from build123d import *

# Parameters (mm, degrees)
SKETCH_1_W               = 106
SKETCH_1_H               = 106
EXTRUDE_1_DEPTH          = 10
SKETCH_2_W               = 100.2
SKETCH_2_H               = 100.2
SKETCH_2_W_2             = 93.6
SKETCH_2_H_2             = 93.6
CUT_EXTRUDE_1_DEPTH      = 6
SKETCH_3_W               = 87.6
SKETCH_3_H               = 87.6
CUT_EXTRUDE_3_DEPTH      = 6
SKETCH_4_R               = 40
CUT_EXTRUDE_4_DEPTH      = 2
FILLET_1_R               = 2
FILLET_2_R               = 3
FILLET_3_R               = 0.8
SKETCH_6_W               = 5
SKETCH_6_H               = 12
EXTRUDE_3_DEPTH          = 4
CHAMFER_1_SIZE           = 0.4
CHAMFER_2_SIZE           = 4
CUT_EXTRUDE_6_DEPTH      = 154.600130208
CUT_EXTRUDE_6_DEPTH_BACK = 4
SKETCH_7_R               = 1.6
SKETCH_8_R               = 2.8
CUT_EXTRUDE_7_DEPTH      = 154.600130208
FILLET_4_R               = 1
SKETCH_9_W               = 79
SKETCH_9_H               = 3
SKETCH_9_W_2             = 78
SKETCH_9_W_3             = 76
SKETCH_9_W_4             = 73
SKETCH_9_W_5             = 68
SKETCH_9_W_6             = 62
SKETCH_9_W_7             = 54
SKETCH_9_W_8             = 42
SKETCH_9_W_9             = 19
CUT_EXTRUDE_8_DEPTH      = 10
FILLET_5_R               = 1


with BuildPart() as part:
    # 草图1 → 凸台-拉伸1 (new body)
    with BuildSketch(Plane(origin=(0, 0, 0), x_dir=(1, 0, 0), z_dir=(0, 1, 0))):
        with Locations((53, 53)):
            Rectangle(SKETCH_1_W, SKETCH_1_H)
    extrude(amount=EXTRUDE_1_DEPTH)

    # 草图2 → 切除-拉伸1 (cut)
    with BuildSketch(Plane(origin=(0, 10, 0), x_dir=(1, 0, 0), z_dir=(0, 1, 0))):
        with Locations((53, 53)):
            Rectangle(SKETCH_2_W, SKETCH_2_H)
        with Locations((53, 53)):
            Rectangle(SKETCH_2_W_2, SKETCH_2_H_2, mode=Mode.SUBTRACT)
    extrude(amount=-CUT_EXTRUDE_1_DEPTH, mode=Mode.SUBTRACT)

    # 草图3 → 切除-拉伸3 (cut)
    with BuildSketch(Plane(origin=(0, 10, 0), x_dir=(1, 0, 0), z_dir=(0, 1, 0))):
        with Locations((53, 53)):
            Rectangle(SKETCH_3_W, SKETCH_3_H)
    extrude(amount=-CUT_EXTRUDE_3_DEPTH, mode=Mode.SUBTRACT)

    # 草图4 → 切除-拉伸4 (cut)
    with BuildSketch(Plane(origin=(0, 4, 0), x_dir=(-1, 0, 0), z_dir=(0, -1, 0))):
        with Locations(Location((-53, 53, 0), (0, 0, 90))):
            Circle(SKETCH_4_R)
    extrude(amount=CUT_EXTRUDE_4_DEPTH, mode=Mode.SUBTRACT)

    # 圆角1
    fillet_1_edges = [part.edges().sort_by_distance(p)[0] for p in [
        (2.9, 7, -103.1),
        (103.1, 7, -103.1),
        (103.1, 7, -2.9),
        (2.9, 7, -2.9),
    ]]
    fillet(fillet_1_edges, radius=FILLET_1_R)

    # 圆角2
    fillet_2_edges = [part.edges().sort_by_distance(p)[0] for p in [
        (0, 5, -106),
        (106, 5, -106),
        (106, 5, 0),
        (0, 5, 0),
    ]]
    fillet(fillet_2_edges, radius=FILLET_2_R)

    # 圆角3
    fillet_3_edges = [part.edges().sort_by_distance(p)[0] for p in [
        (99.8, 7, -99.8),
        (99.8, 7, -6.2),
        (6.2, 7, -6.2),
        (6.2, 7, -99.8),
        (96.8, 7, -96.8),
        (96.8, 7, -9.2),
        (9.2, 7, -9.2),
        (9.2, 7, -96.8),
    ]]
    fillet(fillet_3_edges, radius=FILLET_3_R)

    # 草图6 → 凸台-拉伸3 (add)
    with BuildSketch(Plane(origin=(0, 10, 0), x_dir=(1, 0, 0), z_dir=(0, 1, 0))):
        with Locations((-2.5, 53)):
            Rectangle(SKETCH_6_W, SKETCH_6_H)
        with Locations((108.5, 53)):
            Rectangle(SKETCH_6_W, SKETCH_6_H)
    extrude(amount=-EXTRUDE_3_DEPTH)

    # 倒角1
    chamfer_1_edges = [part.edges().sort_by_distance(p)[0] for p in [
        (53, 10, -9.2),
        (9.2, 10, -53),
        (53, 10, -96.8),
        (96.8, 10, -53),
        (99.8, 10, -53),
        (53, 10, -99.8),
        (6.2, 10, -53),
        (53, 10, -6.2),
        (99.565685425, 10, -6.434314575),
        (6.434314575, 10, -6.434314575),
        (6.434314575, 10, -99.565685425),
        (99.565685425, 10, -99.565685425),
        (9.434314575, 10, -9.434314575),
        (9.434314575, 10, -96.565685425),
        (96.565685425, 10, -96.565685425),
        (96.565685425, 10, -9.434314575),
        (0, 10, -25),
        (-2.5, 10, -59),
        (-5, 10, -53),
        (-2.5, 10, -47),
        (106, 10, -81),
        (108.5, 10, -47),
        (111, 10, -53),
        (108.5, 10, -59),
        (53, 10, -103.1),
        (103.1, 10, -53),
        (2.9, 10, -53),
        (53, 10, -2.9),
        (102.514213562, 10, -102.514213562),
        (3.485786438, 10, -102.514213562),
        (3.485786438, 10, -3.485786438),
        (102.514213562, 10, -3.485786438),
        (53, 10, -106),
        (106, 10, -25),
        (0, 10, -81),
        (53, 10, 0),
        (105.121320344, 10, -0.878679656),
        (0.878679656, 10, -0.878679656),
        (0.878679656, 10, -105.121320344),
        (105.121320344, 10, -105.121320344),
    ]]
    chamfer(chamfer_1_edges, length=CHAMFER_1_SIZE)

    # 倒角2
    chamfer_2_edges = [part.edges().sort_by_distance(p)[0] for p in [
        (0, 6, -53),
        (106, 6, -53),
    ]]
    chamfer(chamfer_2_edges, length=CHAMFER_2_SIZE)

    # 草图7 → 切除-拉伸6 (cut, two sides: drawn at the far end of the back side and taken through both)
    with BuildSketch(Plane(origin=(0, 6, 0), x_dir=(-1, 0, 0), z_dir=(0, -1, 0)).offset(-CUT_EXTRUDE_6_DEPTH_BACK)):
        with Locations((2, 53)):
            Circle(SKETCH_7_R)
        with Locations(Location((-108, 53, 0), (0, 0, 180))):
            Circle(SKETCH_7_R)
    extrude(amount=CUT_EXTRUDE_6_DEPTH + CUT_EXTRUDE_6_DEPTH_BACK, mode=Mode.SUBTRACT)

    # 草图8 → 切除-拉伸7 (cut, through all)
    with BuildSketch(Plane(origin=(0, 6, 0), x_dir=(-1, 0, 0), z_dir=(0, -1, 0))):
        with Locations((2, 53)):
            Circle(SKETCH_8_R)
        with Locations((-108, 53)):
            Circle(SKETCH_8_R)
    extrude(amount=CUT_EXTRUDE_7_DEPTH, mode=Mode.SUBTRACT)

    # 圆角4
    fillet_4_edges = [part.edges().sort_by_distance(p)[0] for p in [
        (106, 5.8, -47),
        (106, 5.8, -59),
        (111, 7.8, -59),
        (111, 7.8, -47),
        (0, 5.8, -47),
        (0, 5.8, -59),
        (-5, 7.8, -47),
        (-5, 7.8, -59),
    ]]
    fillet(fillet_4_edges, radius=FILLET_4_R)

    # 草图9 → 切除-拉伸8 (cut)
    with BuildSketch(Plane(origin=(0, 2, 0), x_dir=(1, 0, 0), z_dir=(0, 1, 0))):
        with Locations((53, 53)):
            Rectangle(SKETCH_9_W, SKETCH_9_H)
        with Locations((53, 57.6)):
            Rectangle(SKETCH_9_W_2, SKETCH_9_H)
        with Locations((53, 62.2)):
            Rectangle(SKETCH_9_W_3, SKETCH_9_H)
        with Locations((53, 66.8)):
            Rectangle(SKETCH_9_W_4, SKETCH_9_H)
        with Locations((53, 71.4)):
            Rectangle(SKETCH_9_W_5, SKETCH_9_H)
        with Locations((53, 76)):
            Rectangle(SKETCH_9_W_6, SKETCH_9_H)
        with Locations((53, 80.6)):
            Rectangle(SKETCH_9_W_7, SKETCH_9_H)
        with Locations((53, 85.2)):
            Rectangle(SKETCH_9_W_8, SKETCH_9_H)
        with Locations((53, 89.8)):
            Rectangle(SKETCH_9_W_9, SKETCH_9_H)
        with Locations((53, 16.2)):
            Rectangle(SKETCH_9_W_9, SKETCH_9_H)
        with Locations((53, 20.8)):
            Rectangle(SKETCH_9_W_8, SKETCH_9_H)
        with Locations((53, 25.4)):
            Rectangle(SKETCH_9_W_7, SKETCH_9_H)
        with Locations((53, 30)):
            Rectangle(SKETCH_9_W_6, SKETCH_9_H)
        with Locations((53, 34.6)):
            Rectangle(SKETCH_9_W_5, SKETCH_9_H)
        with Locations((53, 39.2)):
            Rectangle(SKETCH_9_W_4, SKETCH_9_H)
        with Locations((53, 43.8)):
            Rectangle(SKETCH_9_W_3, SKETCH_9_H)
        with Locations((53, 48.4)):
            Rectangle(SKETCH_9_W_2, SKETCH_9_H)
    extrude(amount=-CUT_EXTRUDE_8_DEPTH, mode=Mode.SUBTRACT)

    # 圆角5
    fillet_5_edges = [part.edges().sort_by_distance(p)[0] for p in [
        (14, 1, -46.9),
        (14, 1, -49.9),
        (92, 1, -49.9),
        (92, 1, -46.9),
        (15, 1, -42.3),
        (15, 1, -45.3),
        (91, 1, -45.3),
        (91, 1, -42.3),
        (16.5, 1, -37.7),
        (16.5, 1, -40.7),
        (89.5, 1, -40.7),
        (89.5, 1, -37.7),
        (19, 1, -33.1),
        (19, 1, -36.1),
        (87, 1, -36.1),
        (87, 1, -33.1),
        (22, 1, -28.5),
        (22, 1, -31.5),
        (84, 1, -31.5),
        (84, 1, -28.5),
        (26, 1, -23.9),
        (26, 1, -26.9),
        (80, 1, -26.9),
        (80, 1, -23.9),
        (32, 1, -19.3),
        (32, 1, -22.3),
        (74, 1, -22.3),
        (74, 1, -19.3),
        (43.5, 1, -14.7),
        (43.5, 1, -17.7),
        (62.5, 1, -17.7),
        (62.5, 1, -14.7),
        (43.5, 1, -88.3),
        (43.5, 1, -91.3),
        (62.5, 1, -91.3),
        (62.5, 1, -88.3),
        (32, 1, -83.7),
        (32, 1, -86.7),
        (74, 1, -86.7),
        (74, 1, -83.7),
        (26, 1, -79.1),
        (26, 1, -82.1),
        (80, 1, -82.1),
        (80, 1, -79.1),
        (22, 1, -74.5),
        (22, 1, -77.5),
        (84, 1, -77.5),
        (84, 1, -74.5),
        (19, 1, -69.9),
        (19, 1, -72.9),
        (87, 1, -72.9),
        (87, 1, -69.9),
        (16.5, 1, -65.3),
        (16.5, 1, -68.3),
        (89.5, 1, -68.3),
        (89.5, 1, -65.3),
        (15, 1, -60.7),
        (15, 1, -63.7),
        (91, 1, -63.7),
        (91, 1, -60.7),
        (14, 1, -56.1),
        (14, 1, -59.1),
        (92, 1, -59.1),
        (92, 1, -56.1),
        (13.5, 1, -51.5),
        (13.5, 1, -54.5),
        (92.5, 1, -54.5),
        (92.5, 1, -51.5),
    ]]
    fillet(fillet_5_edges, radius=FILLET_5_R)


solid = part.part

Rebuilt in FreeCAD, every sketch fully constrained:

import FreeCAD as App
import Part
import Sketcher


def edges_at(feature, points):
    """Names of the edges that pass closest to the given points."""
    edges = feature.Shape.Edges
    near = lambda p: min(range(len(edges)), key=lambda i: edges[i].distToShape(Part.Vertex(*p))[0])
    return sorted({f"Edge{near(p) + 1}" for p in points})

doc = App.newDocument("Part")
body = doc.addObject("PartDesign::Body", "Body")

# Sketch on XZ plane
sketch1 = body.newObject("Sketcher::SketchObject", "Sketch")
sketch1.AttachmentSupport = (doc.getObject("XZ_Plane"), [""])
sketch1.MapMode = "FlatFace"
sketch1.addGeometry([
    Part.LineSegment(App.Vector(0, -106, 0), App.Vector(0, 0, 0)),
    Part.LineSegment(App.Vector(0, 0, 0), App.Vector(106, 0, 0)),
    Part.LineSegment(App.Vector(106, 0, 0), App.Vector(106, -106, 0)),
    Part.LineSegment(App.Vector(106, -106, 0), App.Vector(0, -106, 0)),
], False)
sketch1.addConstraint([
    Sketcher.Constraint("Coincident", 0, 2, 1, 1),
    Sketcher.Constraint("Coincident", 1, 2, 2, 1),
    Sketcher.Constraint("Coincident", 2, 2, 3, 1),
    Sketcher.Constraint("Coincident", 3, 2, 0, 1),
    Sketcher.Constraint("Vertical", 0),
    Sketcher.Constraint("Horizontal", 1),
    Sketcher.Constraint("Vertical", 2),
    Sketcher.Constraint("Horizontal", 3),
    Sketcher.Constraint("Coincident", 0, 2, -1, 1),
    Sketcher.Constraint("Equal", 3, 0),
    Sketcher.Constraint("DistanceX", 1, 1, 1, 2, 106.0),
])
pad1 = body.newObject("PartDesign::Pad", "Pad")
pad1.Profile = sketch1
pad1.Length = 10
pad1.Reversed = True

# Sketch on XZ plane
sketch2 = body.newObject("Sketcher::SketchObject", "Sketch001")
sketch2.AttachmentSupport = (doc.getObject("XZ_Plane"), [""])
sketch2.MapMode = "FlatFace"
sketch2.AttachmentOffset = App.Placement(App.Vector(0, 0, -10), App.Rotation())
sketch2.addGeometry([
    Part.LineSegment(App.Vector(3, -103, 0), App.Vector(3, -3, 0)),  # 0
    Part.LineSegment(App.Vector(3, -3, 0), App.Vector(103, -3, 0)),  # 1
    Part.LineSegment(App.Vector(103, -3, 0), App.Vector(103, -103, 0)),  # 2
    Part.LineSegment(App.Vector(103, -103, 0), App.Vector(3, -103, 0)),  # 3
    Part.LineSegment(App.Vector(100, -6, 0), App.Vector(6, -6, 0)),  # 4
    Part.LineSegment(App.Vector(6, -6, 0), App.Vector(6, -100, 0)),  # 5
    Part.LineSegment(App.Vector(6, -100, 0), App.Vector(100, -100, 0)),  # 6
    Part.LineSegment(App.Vector(100, -100, 0), App.Vector(100, -6, 0)),  # 7
], False)
sketch2.addConstraint([
    Sketcher.Constraint("Coincident", 0, 2, 1, 1),
    Sketcher.Constraint("Coincident", 1, 2, 2, 1),
    Sketcher.Constraint("Coincident", 2, 2, 3, 1),
    Sketcher.Constraint("Coincident", 3, 2, 0, 1),
    Sketcher.Constraint("Coincident", 4, 2, 5, 1),
    Sketcher.Constraint("Coincident", 5, 2, 6, 1),
    Sketcher.Constraint("Coincident", 6, 2, 7, 1),
    Sketcher.Constraint("Coincident", 7, 2, 4, 1),
    Sketcher.Constraint("Vertical", 0),
    Sketcher.Constraint("Horizontal", 1),
    Sketcher.Constraint("Vertical", 2),
    Sketcher.Constraint("Horizontal", 3),
    Sketcher.Constraint("Horizontal", 4),
    Sketcher.Constraint("Vertical", 5),
    Sketcher.Constraint("Horizontal", 6),
    Sketcher.Constraint("Vertical", 7),
    Sketcher.Constraint("Equal", 3, 0),
    Sketcher.Constraint("Equal", 6, 5),
    Sketcher.Constraint("DistanceX", 1, 1, 1, 2, 100.2),
    Sketcher.Constraint("DistanceX", 4, 2, 4, 1, 93.6),
    Sketcher.Constraint("DistanceX", -1, 1, 0, 2, 2.9),
    Sketcher.Constraint("DistanceY", 0, 2, -1, 1, 2.9),
    Sketcher.Constraint("DistanceX", -1, 1, 4, 2, 6.2),
    Sketcher.Constraint("DistanceY", 4, 2, -1, 1, 6.2),
])
pocket1 = body.newObject("PartDesign::Pocket", "Pocket")
pocket1.Profile = sketch2
pocket1.Length = 6
pocket1.Reversed = True

# Sketch on XZ plane
sketch3 = body.newObject("Sketcher::SketchObject", "Sketch002")
sketch3.AttachmentSupport = (doc.getObject("XZ_Plane"), [""])
sketch3.MapMode = "FlatFace"
sketch3.AttachmentOffset = App.Placement(App.Vector(0, 0, -10), App.Rotation())
sketch3.addGeometry([
    Part.LineSegment(App.Vector(9, -97, 0), App.Vector(9, -9, 0)),
    Part.LineSegment(App.Vector(9, -9, 0), App.Vector(97, -9, 0)),
    Part.LineSegment(App.Vector(97, -9, 0), App.Vector(97, -97, 0)),
    Part.LineSegment(App.Vector(97, -97, 0), App.Vector(9, -97, 0)),
], False)
sketch3.addConstraint([
    Sketcher.Constraint("Coincident", 0, 2, 1, 1),
    Sketcher.Constraint("Coincident", 1, 2, 2, 1),
    Sketcher.Constraint("Coincident", 2, 2, 3, 1),
    Sketcher.Constraint("Coincident", 3, 2, 0, 1),
    Sketcher.Constraint("Vertical", 0),
    Sketcher.Constraint("Horizontal", 1),
    Sketcher.Constraint("Vertical", 2),
    Sketcher.Constraint("Horizontal", 3),
    Sketcher.Constraint("Equal", 3, 0),
    Sketcher.Constraint("DistanceX", 1, 1, 1, 2, 87.6),
    Sketcher.Constraint("DistanceX", -1, 1, 0, 2, 9.2),
    Sketcher.Constraint("DistanceY", 0, 2, -1, 1, 9.2),
])
pocket2 = body.newObject("PartDesign::Pocket", "Pocket001")
pocket2.Profile = sketch3
pocket2.Length = 6
pocket2.Reversed = True

# Sketch on XZ plane
sketch4 = body.newObject("Sketcher::SketchObject", "Sketch003")
sketch4.AttachmentSupport = (doc.getObject("XZ_Plane"), [""])
sketch4.MapMode = "FlatFace"
sketch4.AttachmentOffset = App.Placement(App.Vector(0, 0, -4), App.Rotation())
sketch4.addGeometry(Part.Circle(App.Vector(53, -53, 0), App.Vector(0, 0, 1), 40), False)
sketch4.addConstraint([
    Sketcher.Constraint("Diameter", 0, 80.0),
    Sketcher.Constraint("DistanceX", -1, 1, 0, 3, 53.0),
    Sketcher.Constraint("DistanceY", 0, 3, -1, 1, 53.0),
])
pocket3 = body.newObject("PartDesign::Pocket", "Pocket002")
pocket3.Profile = sketch4
pocket3.Length = 2
pocket3.Reversed = True
doc.recompute()

fillet = body.newObject("PartDesign::Fillet", "Fillet")
fillet.Base = (pocket3, edges_at(pocket3, [
    (2.9, 7, -103.1),
    (103.1, 7, -103.1),
    (103.1, 7, -2.9),
    (2.9, 7, -2.9),
]))
fillet.Radius = 2
doc.recompute()

fillet2 = body.newObject("PartDesign::Fillet", "Fillet001")
fillet2.Base = (fillet, edges_at(fillet, [
    (0, 5, -106),
    (106, 5, -106),
    (106, 5, 0),
    (0, 5, 0),
]))
fillet2.Radius = 3
doc.recompute()

fillet3 = body.newObject("PartDesign::Fillet", "Fillet002")
fillet3.Base = (fillet2, edges_at(fillet2, [
    (99.8, 7, -99.8),
    (99.8, 7, -6.2),
    (6.2, 7, -6.2),
    (6.2, 7, -99.8),
    (96.8, 7, -96.8),
    (96.8, 7, -9.2),
    (9.2, 7, -9.2),
    (9.2, 7, -96.8),
]))
fillet3.Radius = 0.8

# Sketch on XZ plane
sketch5 = body.newObject("Sketcher::SketchObject", "Sketch004")
sketch5.AttachmentSupport = (doc.getObject("XZ_Plane"), [""])
sketch5.MapMode = "FlatFace"
sketch5.AttachmentOffset = App.Placement(App.Vector(0, 0, -10), App.Rotation())
sketch5.addGeometry([
    Part.LineSegment(App.Vector(-5, -59, 0), App.Vector(-5, -47, 0)),  # 0
    Part.LineSegment(App.Vector(-5, -47, 0), App.Vector(0, -47, 0)),  # 1
    Part.LineSegment(App.Vector(0, -47, 0), App.Vector(0, -59, 0)),  # 2
    Part.LineSegment(App.Vector(0, -59, 0), App.Vector(-5, -59, 0)),  # 3
    Part.LineSegment(App.Vector(106, -59, 0), App.Vector(106, -47, 0)),  # 4
    Part.LineSegment(App.Vector(106, -47, 0), App.Vector(111, -47, 0)),  # 5
    Part.LineSegment(App.Vector(111, -47, 0), App.Vector(111, -59, 0)),  # 6
    Part.LineSegment(App.Vector(111, -59, 0), App.Vector(106, -59, 0)),  # 7
], False)
sketch5.addConstraint([
    Sketcher.Constraint("Coincident", 0, 2, 1, 1),
    Sketcher.Constraint("Coincident", 1, 2, 2, 1),
    Sketcher.Constraint("Coincident", 2, 2, 3, 1),
    Sketcher.Constraint("Coincident", 3, 2, 0, 1),
    Sketcher.Constraint("Coincident", 4, 2, 5, 1),
    Sketcher.Constraint("Coincident", 5, 2, 6, 1),
    Sketcher.Constraint("Coincident", 6, 2, 7, 1),
    Sketcher.Constraint("Coincident", 7, 2, 4, 1),
    Sketcher.Constraint("Vertical", 0),
    Sketcher.Constraint("Horizontal", 1),
    Sketcher.Constraint("Vertical", 2),
    Sketcher.Constraint("Horizontal", 3),
    Sketcher.Constraint("Vertical", 4),
    Sketcher.Constraint("Horizontal", 5),
    Sketcher.Constraint("Vertical", 6),
    Sketcher.Constraint("Horizontal", 7),
    Sketcher.Constraint("PointOnObject", 1, 2, -2),
    Sketcher.Constraint("Horizontal", 1, 2, 4, 2),
    Sketcher.Constraint("Horizontal", 3, 2, 6, 2),
    Sketcher.Constraint("Equal", 3, 5),
    Sketcher.Constraint("DistanceX", 1, 1, 1, 2, 5.0),
    Sketcher.Constraint("DistanceY", 0, 1, 0, 2, 12.0),
    Sketcher.Constraint("DistanceY", 0, 2, -1, 1, 47.0),
    Sketcher.Constraint("DistanceX", -1, 1, 4, 2, 106.0),
])
pad2 = body.newObject("PartDesign::Pad", "Pad001")
pad2.Profile = sketch5
pad2.Length = 4
doc.recompute()

chamfer = body.newObject("PartDesign::Chamfer", "Chamfer")
chamfer.Base = (pad2, edges_at(pad2, [
    (53, 10, -9.2),
    (9.2, 10, -53),
    (53, 10, -96.8),
    (96.8, 10, -53),
    (99.8, 10, -53),
    (53, 10, -99.8),
    (6.2, 10, -53),
    (53, 10, -6.2),
    (99.566, 10, -6.434),
    (6.434, 10, -6.434),
    (6.434, 10, -99.566),
    (99.566, 10, -99.566),
    (9.434, 10, -9.434),
    (9.434, 10, -96.566),
    (96.566, 10, -96.566),
    (96.566, 10, -9.434),
    (0, 10, -25),
    (-2.5, 10, -59),
    (-5, 10, -53),
    (-2.5, 10, -47),
    (106, 10, -81),
    (108.5, 10, -47),
    (111, 10, -53),
    (108.5, 10, -59),
    (53, 10, -103.1),
    (103.1, 10, -53),
    (2.9, 10, -53),
    (53, 10, -2.9),
    (102.514, 10, -102.514),
    (3.486, 10, -102.514),
    (3.486, 10, -3.486),
    (102.514, 10, -3.486),
    (53, 10, -106),
    (106, 10, -25),
    (0, 10, -81),
    (53, 10, 0),
    (105.121, 10, -0.879),
    (0.879, 10, -0.879),
    (0.879, 10, -105.121),
    (105.121, 10, -105.121),
]))
chamfer.Size = 0.4
doc.recompute()

chamfer2 = body.newObject("PartDesign::Chamfer", "Chamfer001")
chamfer2.Base = (chamfer, edges_at(chamfer, [(0, 6, -53), (106, 6, -53)]))
chamfer2.Size = 4

# Sketch on XZ plane
sketch6 = body.newObject("Sketcher::SketchObject", "Sketch005")
sketch6.AttachmentSupport = (doc.getObject("XZ_Plane"), [""])
sketch6.MapMode = "FlatFace"
sketch6.AttachmentOffset = App.Placement(App.Vector(0, 0, -6), App.Rotation())
sketch6.addGeometry([
    Part.Circle(App.Vector(-2, -53, 0), App.Vector(0, 0, 1), 1.6),
    Part.Circle(App.Vector(108, -53, 0), App.Vector(0, 0, 1), 1.6),
], False)
sketch6.addConstraint([
    Sketcher.Constraint("Equal", 0, 1),
    Sketcher.Constraint("Horizontal", 0, 3, 1, 3),
    Sketcher.Constraint("Diameter", 0, 3.2),
    Sketcher.Constraint("DistanceX", 0, 3, -1, 1, 2.0),
    Sketcher.Constraint("DistanceY", 0, 3, -1, 1, 53.0),
    Sketcher.Constraint("DistanceX", -1, 1, 1, 3, 108.0),
])
pocket4 = body.newObject("PartDesign::Pocket", "Pocket003")
pocket4.Profile = sketch6
pocket4.Type = "ThroughAll"
pocket4.Midplane = True

# Sketch on XZ plane
sketch7 = body.newObject("Sketcher::SketchObject", "Sketch006")
sketch7.AttachmentSupport = (doc.getObject("XZ_Plane"), [""])
sketch7.MapMode = "FlatFace"
sketch7.AttachmentOffset = App.Placement(App.Vector(0, 0, -6), App.Rotation())
sketch7.addGeometry([
    Part.Circle(App.Vector(-2, -53, 0), App.Vector(0, 0, 1), 2.8),
    Part.Circle(App.Vector(108, -53, 0), App.Vector(0, 0, 1), 2.8),
], False)
sketch7.addConstraint([
    Sketcher.Constraint("Equal", 0, 1),
    Sketcher.Constraint("Horizontal", 0, 3, 1, 3),
    Sketcher.Constraint("Diameter", 0, 5.6),
    Sketcher.Constraint("DistanceX", 0, 3, -1, 1, 2.0),
    Sketcher.Constraint("DistanceY", 0, 3, -1, 1, 53.0),
    Sketcher.Constraint("DistanceX", -1, 1, 1, 3, 108.0),
])
pocket5 = body.newObject("PartDesign::Pocket", "Pocket004")
pocket5.Profile = sketch7
pocket5.Type = "ThroughAll"
pocket5.Reversed = True
doc.recompute()

fillet4 = body.newObject("PartDesign::Fillet", "Fillet003")
fillet4.Base = (pocket5, edges_at(pocket5, [
    (106, 5.8, -47),
    (106, 5.8, -59),
    (111, 7.8, -59),
    (111, 7.8, -47),
    (0, 5.8, -47),
    (0, 5.8, -59),
    (-5, 7.8, -47),
    (-5, 7.8, -59),
]))
fillet4.Radius = 1

# Sketch on XZ plane
sketch8 = body.newObject("Sketcher::SketchObject", "Sketch007")
sketch8.AttachmentSupport = (doc.getObject("XZ_Plane"), [""])
sketch8.MapMode = "FlatFace"
sketch8.AttachmentOffset = App.Placement(App.Vector(0, 0, -2), App.Rotation())
sketch8.addGeometry([
    Part.LineSegment(App.Vector(13.5, -54.5, 0), App.Vector(13.5, -51.5, 0)),  # 0
    Part.LineSegment(App.Vector(13.5, -51.5, 0), App.Vector(92.5, -51.5, 0)),  # 1
    Part.LineSegment(App.Vector(92.5, -51.5, 0), App.Vector(92.5, -54.5, 0)),  # 2
    Part.LineSegment(App.Vector(92.5, -54.5, 0), App.Vector(13.5, -54.5, 0)),  # 3
    Part.LineSegment(App.Vector(14, -59.1, 0), App.Vector(14, -56.1, 0)),  # 4
    Part.LineSegment(App.Vector(14, -56.1, 0), App.Vector(92, -56.1, 0)),  # 5
    Part.LineSegment(App.Vector(92, -56.1, 0), App.Vector(92, -59.1, 0)),  # 6
    Part.LineSegment(App.Vector(92, -59.1, 0), App.Vector(14, -59.1, 0)),  # 7
    Part.LineSegment(App.Vector(15, -63.7, 0), App.Vector(15, -60.7, 0)),  # 8
    Part.LineSegment(App.Vector(15, -60.7, 0), App.Vector(91, -60.7, 0)),  # 9
    Part.LineSegment(App.Vector(91, -60.7, 0), App.Vector(91, -63.7, 0)),  # 10
    Part.LineSegment(App.Vector(91, -63.7, 0), App.Vector(15, -63.7, 0)),  # 11
    Part.LineSegment(App.Vector(16.5, -68.3, 0), App.Vector(16.5, -65.3, 0)),  # 12
    Part.LineSegment(App.Vector(16.5, -65.3, 0), App.Vector(89.5, -65.3, 0)),  # 13
    Part.LineSegment(App.Vector(89.5, -65.3, 0), App.Vector(89.5, -68.3, 0)),  # 14
    Part.LineSegment(App.Vector(89.5, -68.3, 0), App.Vector(16.5, -68.3, 0)),  # 15
    Part.LineSegment(App.Vector(19, -72.9, 0), App.Vector(19, -69.9, 0)),  # 16
    Part.LineSegment(App.Vector(19, -69.9, 0), App.Vector(87, -69.9, 0)),  # 17
    Part.LineSegment(App.Vector(87, -69.9, 0), App.Vector(87, -72.9, 0)),  # 18
    Part.LineSegment(App.Vector(87, -72.9, 0), App.Vector(19, -72.9, 0)),  # 19
    Part.LineSegment(App.Vector(22, -77.5, 0), App.Vector(22, -74.5, 0)),  # 20
    Part.LineSegment(App.Vector(22, -74.5, 0), App.Vector(84, -74.5, 0)),  # 21
    Part.LineSegment(App.Vector(84, -74.5, 0), App.Vector(84, -77.5, 0)),  # 22
    Part.LineSegment(App.Vector(84, -77.5, 0), App.Vector(22, -77.5, 0)),  # 23
    Part.LineSegment(App.Vector(26, -82.1, 0), App.Vector(26, -79.1, 0)),  # 24
    Part.LineSegment(App.Vector(26, -79.1, 0), App.Vector(80, -79.1, 0)),  # 25
    Part.LineSegment(App.Vector(80, -79.1, 0), App.Vector(80, -82.1, 0)),  # 26
    Part.LineSegment(App.Vector(80, -82.1, 0), App.Vector(26, -82.1, 0)),  # 27
    Part.LineSegment(App.Vector(32, -86.7, 0), App.Vector(32, -83.7, 0)),  # 28
    Part.LineSegment(App.Vector(32, -83.7, 0), App.Vector(74, -83.7, 0)),  # 29
    Part.LineSegment(App.Vector(74, -83.7, 0), App.Vector(74, -86.7, 0)),  # 30
    Part.LineSegment(App.Vector(74, -86.7, 0), App.Vector(32, -86.7, 0)),  # 31
    Part.LineSegment(App.Vector(43.5, -91.3, 0), App.Vector(43.5, -88.3, 0)),  # 32
    Part.LineSegment(App.Vector(43.5, -88.3, 0), App.Vector(62.5, -88.3, 0)),  # 33
    Part.LineSegment(App.Vector(62.5, -88.3, 0), App.Vector(62.5, -91.3, 0)),  # 34
    Part.LineSegment(App.Vector(62.5, -91.3, 0), App.Vector(43.5, -91.3, 0)),  # 35
    Part.LineSegment(App.Vector(43.5, -17.7, 0), App.Vector(43.5, -14.7, 0)),  # 36
    Part.LineSegment(App.Vector(43.5, -14.7, 0), App.Vector(62.5, -14.7, 0)),  # 37
    Part.LineSegment(App.Vector(62.5, -14.7, 0), App.Vector(62.5, -17.7, 0)),  # 38
    Part.LineSegment(App.Vector(62.5, -17.7, 0), App.Vector(43.5, -17.7, 0)),  # 39
    Part.LineSegment(App.Vector(32, -22.3, 0), App.Vector(32, -19.3, 0)),  # 40
    Part.LineSegment(App.Vector(32, -19.3, 0), App.Vector(74, -19.3, 0)),  # 41
    Part.LineSegment(App.Vector(74, -19.3, 0), App.Vector(74, -22.3, 0)),  # 42
    Part.LineSegment(App.Vector(74, -22.3, 0), App.Vector(32, -22.3, 0)),  # 43
    Part.LineSegment(App.Vector(26, -26.9, 0), App.Vector(26, -23.9, 0)),  # 44
    Part.LineSegment(App.Vector(26, -23.9, 0), App.Vector(80, -23.9, 0)),  # 45
    Part.LineSegment(App.Vector(80, -23.9, 0), App.Vector(80, -26.9, 0)),  # 46
    Part.LineSegment(App.Vector(80, -26.9, 0), App.Vector(26, -26.9, 0)),  # 47
    Part.LineSegment(App.Vector(22, -31.5, 0), App.Vector(22, -28.5, 0)),  # 48
    Part.LineSegment(App.Vector(22, -28.5, 0), App.Vector(84, -28.5, 0)),  # 49
    Part.LineSegment(App.Vector(84, -28.5, 0), App.Vector(84, -31.5, 0)),  # 50
    Part.LineSegment(App.Vector(84, -31.5, 0), App.Vector(22, -31.5, 0)),  # 51
    Part.LineSegment(App.Vector(19, -36.1, 0), App.Vector(19, -33.1, 0)),  # 52
    Part.LineSegment(App.Vector(19, -33.1, 0), App.Vector(87, -33.1, 0)),  # 53
    Part.LineSegment(App.Vector(87, -33.1, 0), App.Vector(87, -36.1, 0)),  # 54
    Part.LineSegment(App.Vector(87, -36.1, 0), App.Vector(19, -36.1, 0)),  # 55
    Part.LineSegment(App.Vector(16.5, -40.7, 0), App.Vector(16.5, -37.7, 0)),  # 56
    Part.LineSegment(App.Vector(16.5, -37.7, 0), App.Vector(89.5, -37.7, 0)),  # 57
    Part.LineSegment(App.Vector(89.5, -37.7, 0), App.Vector(89.5, -40.7, 0)),  # 58
    Part.LineSegment(App.Vector(89.5, -40.7, 0), App.Vector(16.5, -40.7, 0)),  # 59
    Part.LineSegment(App.Vector(15, -45.3, 0), App.Vector(15, -42.3, 0)),  # 60
    Part.LineSegment(App.Vector(15, -42.3, 0), App.Vector(91, -42.3, 0)),  # 61
    Part.LineSegment(App.Vector(91, -42.3, 0), App.Vector(91, -45.3, 0)),  # 62
    Part.LineSegment(App.Vector(91, -45.3, 0), App.Vector(15, -45.3, 0)),  # 63
    Part.LineSegment(App.Vector(14, -49.9, 0), App.Vector(14, -46.9, 0)),  # 64
    Part.LineSegment(App.Vector(14, -46.9, 0), App.Vector(92, -46.9, 0)),  # 65
    Part.LineSegment(App.Vector(92, -46.9, 0), App.Vector(92, -49.9, 0)),  # 66
    Part.LineSegment(App.Vector(92, -49.9, 0), App.Vector(14, -49.9, 0)),  # 67
], False)
sketch8.addConstraint([
    Sketcher.Constraint("Coincident", 0, 2, 1, 1),
    Sketcher.Constraint("Coincident", 1, 2, 2, 1),
    Sketcher.Constraint("Coincident", 2, 2, 3, 1),
    Sketcher.Constraint("Coincident", 3, 2, 0, 1),
    Sketcher.Constraint("Coincident", 4, 2, 5, 1),
    Sketcher.Constraint("Coincident", 5, 2, 6, 1),
    Sketcher.Constraint("Coincident", 6, 2, 7, 1),
    Sketcher.Constraint("Coincident", 7, 2, 4, 1),
    Sketcher.Constraint("Coincident", 8, 2, 9, 1),
    Sketcher.Constraint("Coincident", 9, 2, 10, 1),
    Sketcher.Constraint("Coincident", 10, 2, 11, 1),
    Sketcher.Constraint("Coincident", 11, 2, 8, 1),
    Sketcher.Constraint("Coincident", 12, 2, 13, 1),
    Sketcher.Constraint("Coincident", 13, 2, 14, 1),
    Sketcher.Constraint("Coincident", 14, 2, 15, 1),
    Sketcher.Constraint("Coincident", 15, 2, 12, 1),
    Sketcher.Constraint("Coincident", 16, 2, 17, 1),
    Sketcher.Constraint("Coincident", 17, 2, 18, 1),
    Sketcher.Constraint("Coincident", 18, 2, 19, 1),
    Sketcher.Constraint("Coincident", 19, 2, 16, 1),
    Sketcher.Constraint("Coincident", 20, 2, 21, 1),
    Sketcher.Constraint("Coincident", 21, 2, 22, 1),
    Sketcher.Constraint("Coincident", 22, 2, 23, 1),
    Sketcher.Constraint("Coincident", 23, 2, 20, 1),
    Sketcher.Constraint("Coincident", 24, 2, 25, 1),
    Sketcher.Constraint("Coincident", 25, 2, 26, 1),
    Sketcher.Constraint("Coincident", 26, 2, 27, 1),
    Sketcher.Constraint("Coincident", 27, 2, 24, 1),
    Sketcher.Constraint("Coincident", 28, 2, 29, 1),
    Sketcher.Constraint("Coincident", 29, 2, 30, 1),
    Sketcher.Constraint("Coincident", 30, 2, 31, 1),
    Sketcher.Constraint("Coincident", 31, 2, 28, 1),
    Sketcher.Constraint("Coincident", 32, 2, 33, 1),
    Sketcher.Constraint("Coincident", 33, 2, 34, 1),
    Sketcher.Constraint("Coincident", 34, 2, 35, 1),
    Sketcher.Constraint("Coincident", 35, 2, 32, 1),
    Sketcher.Constraint("Coincident", 36, 2, 37, 1),
    Sketcher.Constraint("Coincident", 37, 2, 38, 1),
    Sketcher.Constraint("Coincident", 38, 2, 39, 1),
    Sketcher.Constraint("Coincident", 39, 2, 36, 1),
    Sketcher.Constraint("Coincident", 40, 2, 41, 1),
    Sketcher.Constraint("Coincident", 41, 2, 42, 1),
    Sketcher.Constraint("Coincident", 42, 2, 43, 1),
    Sketcher.Constraint("Coincident", 43, 2, 40, 1),
    Sketcher.Constraint("Coincident", 44, 2, 45, 1),
    Sketcher.Constraint("Coincident", 45, 2, 46, 1),
    Sketcher.Constraint("Coincident", 46, 2, 47, 1),
    Sketcher.Constraint("Coincident", 47, 2, 44, 1),
    Sketcher.Constraint("Coincident", 48, 2, 49, 1),
    Sketcher.Constraint("Coincident", 49, 2, 50, 1),
    Sketcher.Constraint("Coincident", 50, 2, 51, 1),
    Sketcher.Constraint("Coincident", 51, 2, 48, 1),
    Sketcher.Constraint("Coincident", 52, 2, 53, 1),
    Sketcher.Constraint("Coincident", 53, 2, 54, 1),
    Sketcher.Constraint("Coincident", 54, 2, 55, 1),
    Sketcher.Constraint("Coincident", 55, 2, 52, 1),
    Sketcher.Constraint("Coincident", 56, 2, 57, 1),
    Sketcher.Constraint("Coincident", 57, 2, 58, 1),
    Sketcher.Constraint("Coincident", 58, 2, 59, 1),
    Sketcher.Constraint("Coincident", 59, 2, 56, 1),
    Sketcher.Constraint("Coincident", 60, 2, 61, 1),
    Sketcher.Constraint("Coincident", 61, 2, 62, 1),
    Sketcher.Constraint("Coincident", 62, 2, 63, 1),
    Sketcher.Constraint("Coincident", 63, 2, 60, 1),
    Sketcher.Constraint("Coincident", 64, 2, 65, 1),
    Sketcher.Constraint("Coincident", 65, 2, 66, 1),
    Sketcher.Constraint("Coincident", 66, 2, 67, 1),
    Sketcher.Constraint("Coincident", 67, 2, 64, 1),
    Sketcher.Constraint("Vertical", 0),
    Sketcher.Constraint("Horizontal", 1),
    Sketcher.Constraint("Vertical", 2),
    Sketcher.Constraint("Horizontal", 3),
    Sketcher.Constraint("Vertical", 4),
    Sketcher.Constraint("Horizontal", 5),
    Sketcher.Constraint("Vertical", 6),
    Sketcher.Constraint("Horizontal", 7),
    Sketcher.Constraint("Vertical", 8),
    Sketcher.Constraint("Horizontal", 9),
    Sketcher.Constraint("Vertical", 10),
    Sketcher.Constraint("Horizontal", 11),
    Sketcher.Constraint("Vertical", 12),
    Sketcher.Constraint("Horizontal", 13),
    Sketcher.Constraint("Vertical", 14),
    Sketcher.Constraint("Horizontal", 15),
    Sketcher.Constraint("Vertical", 16),
    Sketcher.Constraint("Horizontal", 17),
    Sketcher.Constraint("Vertical", 18),
    Sketcher.Constraint("Horizontal", 19),
    Sketcher.Constraint("Vertical", 20),
    Sketcher.Constraint("Horizontal", 21),
    Sketcher.Constraint("Vertical", 22),
    Sketcher.Constraint("Horizontal", 23),
    Sketcher.Constraint("Vertical", 24),
    Sketcher.Constraint("Horizontal", 25),
    Sketcher.Constraint("Vertical", 26),
    Sketcher.Constraint("Horizontal", 27),
    Sketcher.Constraint("Vertical", 28),
    Sketcher.Constraint("Horizontal", 29),
    Sketcher.Constraint("Vertical", 30),
    Sketcher.Constraint("Horizontal", 31),
    Sketcher.Constraint("Vertical", 32),
    Sketcher.Constraint("Horizontal", 33),
    Sketcher.Constraint("Vertical", 34),
    Sketcher.Constraint("Horizontal", 35),
    Sketcher.Constraint("Vertical", 36),
    Sketcher.Constraint("Horizontal", 37),
    Sketcher.Constraint("Vertical", 38),
    Sketcher.Constraint("Horizontal", 39),
    Sketcher.Constraint("Vertical", 40),
    Sketcher.Constraint("Horizontal", 41),
    Sketcher.Constraint("Vertical", 42),
    Sketcher.Constraint("Horizontal", 43),
    Sketcher.Constraint("Vertical", 44),
    Sketcher.Constraint("Horizontal", 45),
    Sketcher.Constraint("Vertical", 46),
    Sketcher.Constraint("Horizontal", 47),
    Sketcher.Constraint("Vertical", 48),
    Sketcher.Constraint("Horizontal", 49),
    Sketcher.Constraint("Vertical", 50),
    Sketcher.Constraint("Horizontal", 51),
    Sketcher.Constraint("Vertical", 52),
    Sketcher.Constraint("Horizontal", 53),
    Sketcher.Constraint("Vertical", 54),
    Sketcher.Constraint("Horizontal", 55),
    Sketcher.Constraint("Vertical", 56),
    Sketcher.Constraint("Horizontal", 57),
    Sketcher.Constraint("Vertical", 58),
    Sketcher.Constraint("Horizontal", 59),
    Sketcher.Constraint("Vertical", 60),
    Sketcher.Constraint("Horizontal", 61),
    Sketcher.Constraint("Vertical", 62),
    Sketcher.Constraint("Horizontal", 63),
    Sketcher.Constraint("Vertical", 64),
    Sketcher.Constraint("Horizontal", 65),
    Sketcher.Constraint("Vertical", 66),
    Sketcher.Constraint("Horizontal", 67),
    Sketcher.Constraint("Vertical", 35, 2, 36, 2),
    Sketcher.Constraint("Vertical", 34, 2, 37, 2),
    Sketcher.Constraint("Vertical", 31, 2, 40, 2),
    Sketcher.Constraint("Vertical", 30, 2, 41, 2),
    Sketcher.Constraint("Vertical", 27, 2, 44, 2),
    Sketcher.Constraint("Vertical", 26, 2, 45, 2),
    Sketcher.Constraint("Vertical", 23, 2, 48, 2),
    Sketcher.Constraint("Vertical", 22, 2, 49, 2),
    Sketcher.Constraint("Vertical", 19, 2, 52, 2),
    Sketcher.Constraint("Vertical", 18, 2, 53, 2),
    Sketcher.Constraint("Vertical", 15, 2, 56, 2),
    Sketcher.Constraint("Vertical", 14, 2, 57, 2),
    Sketcher.Constraint("Vertical", 11, 2, 60, 2),
    Sketcher.Constraint("Vertical", 10, 2, 61, 2),
    Sketcher.Constraint("Vertical", 7, 2, 64, 2),
    Sketcher.Constraint("Vertical", 6, 2, 65, 2),
    Sketcher.Constraint("Equal", 2, 4),
    Sketcher.Constraint("Equal", 6, 8),
    Sketcher.Constraint("Equal", 10, 12),
    Sketcher.Constraint("Equal", 14, 16),
    Sketcher.Constraint("Equal", 18, 20),
    Sketcher.Constraint("Equal", 22, 24),
    Sketcher.Constraint("Equal", 26, 28),
    Sketcher.Constraint("Equal", 30, 32),
    Sketcher.Constraint("Equal", 34, 36),
    Sketcher.Constraint("Equal", 38, 40),
    Sketcher.Constraint("Equal", 42, 44),
    Sketcher.Constraint("Equal", 46, 48),
    Sketcher.Constraint("Equal", 50, 52),
    Sketcher.Constraint("Equal", 54, 56),
    Sketcher.Constraint("Equal", 58, 60),
    Sketcher.Constraint("Equal", 62, 64),
    Sketcher.Constraint("DistanceX", 1, 1, 1, 2, 79.0),
    Sketcher.Constraint("DistanceX", 5, 1, 5, 2, 78.0),
    Sketcher.Constraint("DistanceX", 9, 1, 9, 2, 76.0),
    Sketcher.Constraint("DistanceX", 13, 1, 13, 2, 73.0),
    Sketcher.Constraint("DistanceX", 17, 1, 17, 2, 68.0),
    Sketcher.Constraint("DistanceX", 21, 1, 21, 2, 62.0),
    Sketcher.Constraint("DistanceX", 25, 1, 25, 2, 54.0),
    Sketcher.Constraint("DistanceX", 29, 1, 29, 2, 42.0),
    Sketcher.Constraint("DistanceX", 33, 1, 33, 2, 19.0),
    Sketcher.Constraint("DistanceY", 0, 1, 0, 2, 3.0),
    Sketcher.Constraint("DistanceX", -1, 1, 4, 2, 14.0),
    Sketcher.Constraint("DistanceX", -1, 1, 8, 2, 15.0),
    Sketcher.Constraint("DistanceX", -1, 1, 16, 2, 19.0),
    Sketcher.Constraint("DistanceX", -1, 1, 20, 2, 22.0),
    Sketcher.Constraint("DistanceX", -1, 1, 24, 2, 26.0),
    Sketcher.Constraint("DistanceX", -1, 1, 28, 2, 32.0),
    Sketcher.Constraint("DistanceX", -1, 1, 0, 2, 13.5),
    Sketcher.Constraint("DistanceY", 0, 2, -1, 1, 51.5),
    Sketcher.Constraint("DistanceY", 4, 2, -1, 1, 56.1),
    Sketcher.Constraint("DistanceY", 8, 2, -1, 1, 60.7),
    Sketcher.Constraint("DistanceX", -1, 1, 12, 2, 16.5),
    Sketcher.Constraint("DistanceY", 12, 2, -1, 1, 65.3),
    Sketcher.Constraint("DistanceY", 16, 2, -1, 1, 69.9),
    Sketcher.Constraint("DistanceY", 20, 2, -1, 1, 74.5),
    Sketcher.Constraint("DistanceY", 24, 2, -1, 1, 79.1),
    Sketcher.Constraint("DistanceY", 28, 2, -1, 1, 83.7),
    Sketcher.Constraint("DistanceX", -1, 1, 32, 2, 43.5),
    Sketcher.Constraint("DistanceY", 32, 2, -1, 1, 88.3),
    Sketcher.Constraint("DistanceY", 36, 2, -1, 1, 14.7),
    Sketcher.Constraint("DistanceY", 40, 2, -1, 1, 19.3),
    Sketcher.Constraint("DistanceY", 44, 2, -1, 1, 23.9),
    Sketcher.Constraint("DistanceY", 48, 2, -1, 1, 28.5),
    Sketcher.Constraint("DistanceY", 52, 2, -1, 1, 33.1),
    Sketcher.Constraint("DistanceY", 56, 2, -1, 1, 37.7),
    Sketcher.Constraint("DistanceY", 60, 2, -1, 1, 42.3),
    Sketcher.Constraint("DistanceY", 64, 2, -1, 1, 46.9),
])
pocket6 = body.newObject("PartDesign::Pocket", "Pocket005")
pocket6.Profile = sketch8
pocket6.Length = 10
pocket6.Reversed = True
doc.recompute()

fillet5 = body.newObject("PartDesign::Fillet", "Fillet004")
fillet5.Base = (pocket6, edges_at(pocket6, [
    (14, 1, -46.9),
    (14, 1, -49.9),
    (92, 1, -49.9),
    (92, 1, -46.9),
    (15, 1, -42.3),
    (15, 1, -45.3),
    (91, 1, -45.3),
    (91, 1, -42.3),
    (16.5, 1, -37.7),
    (16.5, 1, -40.7),
    (89.5, 1, -40.7),
    (89.5, 1, -37.7),
    (19, 1, -33.1),
    (19, 1, -36.1),
    (87, 1, -36.1),
    (87, 1, -33.1),
    (22, 1, -28.5),
    (22, 1, -31.5),
    (84, 1, -31.5),
    (84, 1, -28.5),
    (26, 1, -23.9),
    (26, 1, -26.9),
    (80, 1, -26.9),
    (80, 1, -23.9),
    (32, 1, -19.3),
    (32, 1, -22.3),
    (74, 1, -22.3),
    (74, 1, -19.3),
    (43.5, 1, -14.7),
    (43.5, 1, -17.7),
    (62.5, 1, -17.7),
    (62.5, 1, -14.7),
    (43.5, 1, -88.3),
    (43.5, 1, -91.3),
    (62.5, 1, -91.3),
    (62.5, 1, -88.3),
    (32, 1, -83.7),
    (32, 1, -86.7),
    (74, 1, -86.7),
    (74, 1, -83.7),
    (26, 1, -79.1),
    (26, 1, -82.1),
    (80, 1, -82.1),
    (80, 1, -79.1),
    (22, 1, -74.5),
    (22, 1, -77.5),
    (84, 1, -77.5),
    (84, 1, -74.5),
    (19, 1, -69.9),
    (19, 1, -72.9),
    (87, 1, -72.9),
    (87, 1, -69.9),
    (16.5, 1, -65.3),
    (16.5, 1, -68.3),
    (89.5, 1, -68.3),
    (89.5, 1, -65.3),
    (15, 1, -60.7),
    (15, 1, -63.7),
    (91, 1, -63.7),
    (91, 1, -60.7),
    (14, 1, -56.1),
    (14, 1, -59.1),
    (92, 1, -59.1),
    (92, 1, -56.1),
    (13.5, 1, -51.5),
    (13.5, 1, -54.5),
    (92.5, 1, -54.5),
    (92.5, 1, -51.5),
]))
fillet5.Radius = 1

doc.recompute()
